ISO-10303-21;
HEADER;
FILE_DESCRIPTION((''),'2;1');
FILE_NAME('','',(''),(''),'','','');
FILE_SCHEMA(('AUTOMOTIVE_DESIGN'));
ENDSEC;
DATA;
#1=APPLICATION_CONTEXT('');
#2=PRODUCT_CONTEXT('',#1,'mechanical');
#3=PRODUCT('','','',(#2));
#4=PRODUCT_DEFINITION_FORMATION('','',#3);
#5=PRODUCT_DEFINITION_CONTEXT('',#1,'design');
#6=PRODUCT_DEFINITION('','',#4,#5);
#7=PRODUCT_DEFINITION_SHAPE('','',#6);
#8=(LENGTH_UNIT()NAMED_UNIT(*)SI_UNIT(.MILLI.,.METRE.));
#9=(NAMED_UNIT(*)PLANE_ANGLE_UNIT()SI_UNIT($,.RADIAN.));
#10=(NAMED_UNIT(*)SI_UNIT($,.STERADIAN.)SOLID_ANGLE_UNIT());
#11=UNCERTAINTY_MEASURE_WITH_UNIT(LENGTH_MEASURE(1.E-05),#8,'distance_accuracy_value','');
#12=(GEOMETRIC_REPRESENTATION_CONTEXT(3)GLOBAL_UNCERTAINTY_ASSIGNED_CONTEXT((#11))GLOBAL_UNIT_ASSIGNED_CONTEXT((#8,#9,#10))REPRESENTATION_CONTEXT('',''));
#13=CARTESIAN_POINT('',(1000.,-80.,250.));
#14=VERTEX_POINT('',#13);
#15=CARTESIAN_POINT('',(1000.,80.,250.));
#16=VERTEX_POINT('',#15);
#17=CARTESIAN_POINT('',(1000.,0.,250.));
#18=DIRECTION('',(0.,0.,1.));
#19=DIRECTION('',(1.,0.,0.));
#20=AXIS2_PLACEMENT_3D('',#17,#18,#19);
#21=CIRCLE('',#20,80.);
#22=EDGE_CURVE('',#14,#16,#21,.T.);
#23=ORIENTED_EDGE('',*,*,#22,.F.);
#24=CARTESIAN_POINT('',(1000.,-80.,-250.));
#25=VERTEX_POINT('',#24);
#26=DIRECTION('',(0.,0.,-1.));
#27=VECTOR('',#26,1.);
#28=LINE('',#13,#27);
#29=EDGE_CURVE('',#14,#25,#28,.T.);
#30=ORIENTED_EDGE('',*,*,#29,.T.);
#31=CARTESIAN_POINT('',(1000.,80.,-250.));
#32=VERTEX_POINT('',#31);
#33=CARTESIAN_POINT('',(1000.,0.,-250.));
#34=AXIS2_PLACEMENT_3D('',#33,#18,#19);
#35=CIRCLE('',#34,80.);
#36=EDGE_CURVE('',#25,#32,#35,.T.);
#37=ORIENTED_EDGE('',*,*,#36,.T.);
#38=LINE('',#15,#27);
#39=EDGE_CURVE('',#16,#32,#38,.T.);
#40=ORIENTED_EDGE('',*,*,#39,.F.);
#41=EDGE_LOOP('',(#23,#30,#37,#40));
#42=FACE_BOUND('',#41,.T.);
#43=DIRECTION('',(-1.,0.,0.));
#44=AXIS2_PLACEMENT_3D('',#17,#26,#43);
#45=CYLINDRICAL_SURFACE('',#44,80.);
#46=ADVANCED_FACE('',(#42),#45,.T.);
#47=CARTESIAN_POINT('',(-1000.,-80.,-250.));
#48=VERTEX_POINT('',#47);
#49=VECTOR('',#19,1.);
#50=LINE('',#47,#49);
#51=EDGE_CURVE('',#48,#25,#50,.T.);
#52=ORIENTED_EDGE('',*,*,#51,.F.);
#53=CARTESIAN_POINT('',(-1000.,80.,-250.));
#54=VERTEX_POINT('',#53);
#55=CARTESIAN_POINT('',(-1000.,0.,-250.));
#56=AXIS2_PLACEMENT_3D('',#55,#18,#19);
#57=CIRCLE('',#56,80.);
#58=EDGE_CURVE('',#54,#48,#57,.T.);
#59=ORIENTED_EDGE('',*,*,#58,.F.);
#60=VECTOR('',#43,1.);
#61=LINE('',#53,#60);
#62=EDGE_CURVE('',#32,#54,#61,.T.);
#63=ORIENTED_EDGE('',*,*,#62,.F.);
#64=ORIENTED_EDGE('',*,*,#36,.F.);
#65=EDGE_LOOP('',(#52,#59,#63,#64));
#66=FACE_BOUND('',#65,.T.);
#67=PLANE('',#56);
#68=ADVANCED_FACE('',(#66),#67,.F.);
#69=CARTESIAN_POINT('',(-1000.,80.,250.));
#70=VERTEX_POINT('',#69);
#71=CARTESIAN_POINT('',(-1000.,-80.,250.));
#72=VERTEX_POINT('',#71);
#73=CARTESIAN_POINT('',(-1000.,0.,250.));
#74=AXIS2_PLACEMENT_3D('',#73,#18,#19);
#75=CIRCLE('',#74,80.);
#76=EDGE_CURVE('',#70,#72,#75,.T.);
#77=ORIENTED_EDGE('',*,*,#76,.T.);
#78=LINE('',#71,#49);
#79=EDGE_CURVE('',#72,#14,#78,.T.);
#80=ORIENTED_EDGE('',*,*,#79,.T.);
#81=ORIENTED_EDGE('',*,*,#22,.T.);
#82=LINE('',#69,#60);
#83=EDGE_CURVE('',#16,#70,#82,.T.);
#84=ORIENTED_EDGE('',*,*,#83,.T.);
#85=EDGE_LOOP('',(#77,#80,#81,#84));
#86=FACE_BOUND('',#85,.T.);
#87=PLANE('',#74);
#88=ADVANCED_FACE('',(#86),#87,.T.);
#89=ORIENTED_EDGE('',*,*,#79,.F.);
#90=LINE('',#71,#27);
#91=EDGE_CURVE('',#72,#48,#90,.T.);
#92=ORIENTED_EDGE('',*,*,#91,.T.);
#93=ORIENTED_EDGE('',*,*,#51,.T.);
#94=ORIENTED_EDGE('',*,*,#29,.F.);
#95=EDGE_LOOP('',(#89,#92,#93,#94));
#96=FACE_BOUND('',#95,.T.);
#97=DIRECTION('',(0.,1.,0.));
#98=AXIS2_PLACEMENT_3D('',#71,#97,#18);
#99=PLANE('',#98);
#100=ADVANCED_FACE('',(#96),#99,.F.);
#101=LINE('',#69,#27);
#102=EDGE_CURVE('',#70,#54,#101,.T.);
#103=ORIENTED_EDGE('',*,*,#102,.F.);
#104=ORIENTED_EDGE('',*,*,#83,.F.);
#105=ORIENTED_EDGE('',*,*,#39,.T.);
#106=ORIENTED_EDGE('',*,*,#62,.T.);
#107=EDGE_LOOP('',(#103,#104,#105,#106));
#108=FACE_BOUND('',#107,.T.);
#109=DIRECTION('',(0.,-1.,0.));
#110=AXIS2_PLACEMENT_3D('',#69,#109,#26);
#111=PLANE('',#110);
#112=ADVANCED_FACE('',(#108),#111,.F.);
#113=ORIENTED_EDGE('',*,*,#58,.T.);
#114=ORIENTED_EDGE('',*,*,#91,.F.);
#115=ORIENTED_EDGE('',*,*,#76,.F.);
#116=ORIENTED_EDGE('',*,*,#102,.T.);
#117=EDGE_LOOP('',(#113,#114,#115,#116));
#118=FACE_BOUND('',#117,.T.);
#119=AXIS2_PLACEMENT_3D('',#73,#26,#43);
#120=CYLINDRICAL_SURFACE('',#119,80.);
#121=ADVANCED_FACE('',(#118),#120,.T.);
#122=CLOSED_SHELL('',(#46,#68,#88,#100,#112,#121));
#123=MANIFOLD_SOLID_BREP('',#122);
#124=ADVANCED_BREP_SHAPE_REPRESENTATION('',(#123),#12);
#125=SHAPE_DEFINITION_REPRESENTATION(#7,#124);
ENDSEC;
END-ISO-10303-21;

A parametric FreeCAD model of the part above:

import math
import FreeCAD as App
import Part
import Sketcher
from FreeCAD import Vector
Q = App.Units.Quantity

doc = App.newDocument("Part")
body = doc.addObject("PartDesign::Body", "Body")

# Sketch on XY plane
sketch1 = body.newObject("Sketcher::SketchObject", "Sketch")
sketch1.AttachmentSupport = (doc.getObject("XY_Plane"), [""])
sketch1.MapMode = "FlatFace"
sketch1.addGeometry([
    Part.LineSegment(Vector(1000, 80, 0), Vector(-1000, 80, 0)),
    Part.ArcOfCircle(Part.Circle(Vector(-1000, 0, 0), Vector(0, 0, 1), 80), math.radians(90), math.radians(270)),
    Part.LineSegment(Vector(-1000, -80, 0), Vector(1000, -80, 0)),
    Part.ArcOfCircle(Part.Circle(Vector(1000, 0, 0), Vector(0, 0, 1), 80), math.radians(-90), math.radians(90)),
], False)
sketch1.addConstraint([
    Sketcher.Constraint("Tangent", 0, 2, 1, 1),
    Sketcher.Constraint("Tangent", 1, 2, 2, 1),
    Sketcher.Constraint("Tangent", 2, 2, 3, 1),
    Sketcher.Constraint("Tangent", 3, 2, 0, 1),
    Sketcher.Constraint("Horizontal", 0),
    Sketcher.Constraint("Horizontal", 2),
    Sketcher.Constraint("Symmetric", 1, 3, 3, 3, -1, 1),
    Sketcher.Constraint("Radius", 1, Q("80 mm")),
    Sketcher.Constraint("DistanceX", 0, 2, 0, 1, Q("2000 mm")),
])
pad1 = body.newObject("PartDesign::Pad", "Pad")
pad1.Profile = sketch1
pad1.Length = 500
pad1.Midplane = True

doc.recompute()
